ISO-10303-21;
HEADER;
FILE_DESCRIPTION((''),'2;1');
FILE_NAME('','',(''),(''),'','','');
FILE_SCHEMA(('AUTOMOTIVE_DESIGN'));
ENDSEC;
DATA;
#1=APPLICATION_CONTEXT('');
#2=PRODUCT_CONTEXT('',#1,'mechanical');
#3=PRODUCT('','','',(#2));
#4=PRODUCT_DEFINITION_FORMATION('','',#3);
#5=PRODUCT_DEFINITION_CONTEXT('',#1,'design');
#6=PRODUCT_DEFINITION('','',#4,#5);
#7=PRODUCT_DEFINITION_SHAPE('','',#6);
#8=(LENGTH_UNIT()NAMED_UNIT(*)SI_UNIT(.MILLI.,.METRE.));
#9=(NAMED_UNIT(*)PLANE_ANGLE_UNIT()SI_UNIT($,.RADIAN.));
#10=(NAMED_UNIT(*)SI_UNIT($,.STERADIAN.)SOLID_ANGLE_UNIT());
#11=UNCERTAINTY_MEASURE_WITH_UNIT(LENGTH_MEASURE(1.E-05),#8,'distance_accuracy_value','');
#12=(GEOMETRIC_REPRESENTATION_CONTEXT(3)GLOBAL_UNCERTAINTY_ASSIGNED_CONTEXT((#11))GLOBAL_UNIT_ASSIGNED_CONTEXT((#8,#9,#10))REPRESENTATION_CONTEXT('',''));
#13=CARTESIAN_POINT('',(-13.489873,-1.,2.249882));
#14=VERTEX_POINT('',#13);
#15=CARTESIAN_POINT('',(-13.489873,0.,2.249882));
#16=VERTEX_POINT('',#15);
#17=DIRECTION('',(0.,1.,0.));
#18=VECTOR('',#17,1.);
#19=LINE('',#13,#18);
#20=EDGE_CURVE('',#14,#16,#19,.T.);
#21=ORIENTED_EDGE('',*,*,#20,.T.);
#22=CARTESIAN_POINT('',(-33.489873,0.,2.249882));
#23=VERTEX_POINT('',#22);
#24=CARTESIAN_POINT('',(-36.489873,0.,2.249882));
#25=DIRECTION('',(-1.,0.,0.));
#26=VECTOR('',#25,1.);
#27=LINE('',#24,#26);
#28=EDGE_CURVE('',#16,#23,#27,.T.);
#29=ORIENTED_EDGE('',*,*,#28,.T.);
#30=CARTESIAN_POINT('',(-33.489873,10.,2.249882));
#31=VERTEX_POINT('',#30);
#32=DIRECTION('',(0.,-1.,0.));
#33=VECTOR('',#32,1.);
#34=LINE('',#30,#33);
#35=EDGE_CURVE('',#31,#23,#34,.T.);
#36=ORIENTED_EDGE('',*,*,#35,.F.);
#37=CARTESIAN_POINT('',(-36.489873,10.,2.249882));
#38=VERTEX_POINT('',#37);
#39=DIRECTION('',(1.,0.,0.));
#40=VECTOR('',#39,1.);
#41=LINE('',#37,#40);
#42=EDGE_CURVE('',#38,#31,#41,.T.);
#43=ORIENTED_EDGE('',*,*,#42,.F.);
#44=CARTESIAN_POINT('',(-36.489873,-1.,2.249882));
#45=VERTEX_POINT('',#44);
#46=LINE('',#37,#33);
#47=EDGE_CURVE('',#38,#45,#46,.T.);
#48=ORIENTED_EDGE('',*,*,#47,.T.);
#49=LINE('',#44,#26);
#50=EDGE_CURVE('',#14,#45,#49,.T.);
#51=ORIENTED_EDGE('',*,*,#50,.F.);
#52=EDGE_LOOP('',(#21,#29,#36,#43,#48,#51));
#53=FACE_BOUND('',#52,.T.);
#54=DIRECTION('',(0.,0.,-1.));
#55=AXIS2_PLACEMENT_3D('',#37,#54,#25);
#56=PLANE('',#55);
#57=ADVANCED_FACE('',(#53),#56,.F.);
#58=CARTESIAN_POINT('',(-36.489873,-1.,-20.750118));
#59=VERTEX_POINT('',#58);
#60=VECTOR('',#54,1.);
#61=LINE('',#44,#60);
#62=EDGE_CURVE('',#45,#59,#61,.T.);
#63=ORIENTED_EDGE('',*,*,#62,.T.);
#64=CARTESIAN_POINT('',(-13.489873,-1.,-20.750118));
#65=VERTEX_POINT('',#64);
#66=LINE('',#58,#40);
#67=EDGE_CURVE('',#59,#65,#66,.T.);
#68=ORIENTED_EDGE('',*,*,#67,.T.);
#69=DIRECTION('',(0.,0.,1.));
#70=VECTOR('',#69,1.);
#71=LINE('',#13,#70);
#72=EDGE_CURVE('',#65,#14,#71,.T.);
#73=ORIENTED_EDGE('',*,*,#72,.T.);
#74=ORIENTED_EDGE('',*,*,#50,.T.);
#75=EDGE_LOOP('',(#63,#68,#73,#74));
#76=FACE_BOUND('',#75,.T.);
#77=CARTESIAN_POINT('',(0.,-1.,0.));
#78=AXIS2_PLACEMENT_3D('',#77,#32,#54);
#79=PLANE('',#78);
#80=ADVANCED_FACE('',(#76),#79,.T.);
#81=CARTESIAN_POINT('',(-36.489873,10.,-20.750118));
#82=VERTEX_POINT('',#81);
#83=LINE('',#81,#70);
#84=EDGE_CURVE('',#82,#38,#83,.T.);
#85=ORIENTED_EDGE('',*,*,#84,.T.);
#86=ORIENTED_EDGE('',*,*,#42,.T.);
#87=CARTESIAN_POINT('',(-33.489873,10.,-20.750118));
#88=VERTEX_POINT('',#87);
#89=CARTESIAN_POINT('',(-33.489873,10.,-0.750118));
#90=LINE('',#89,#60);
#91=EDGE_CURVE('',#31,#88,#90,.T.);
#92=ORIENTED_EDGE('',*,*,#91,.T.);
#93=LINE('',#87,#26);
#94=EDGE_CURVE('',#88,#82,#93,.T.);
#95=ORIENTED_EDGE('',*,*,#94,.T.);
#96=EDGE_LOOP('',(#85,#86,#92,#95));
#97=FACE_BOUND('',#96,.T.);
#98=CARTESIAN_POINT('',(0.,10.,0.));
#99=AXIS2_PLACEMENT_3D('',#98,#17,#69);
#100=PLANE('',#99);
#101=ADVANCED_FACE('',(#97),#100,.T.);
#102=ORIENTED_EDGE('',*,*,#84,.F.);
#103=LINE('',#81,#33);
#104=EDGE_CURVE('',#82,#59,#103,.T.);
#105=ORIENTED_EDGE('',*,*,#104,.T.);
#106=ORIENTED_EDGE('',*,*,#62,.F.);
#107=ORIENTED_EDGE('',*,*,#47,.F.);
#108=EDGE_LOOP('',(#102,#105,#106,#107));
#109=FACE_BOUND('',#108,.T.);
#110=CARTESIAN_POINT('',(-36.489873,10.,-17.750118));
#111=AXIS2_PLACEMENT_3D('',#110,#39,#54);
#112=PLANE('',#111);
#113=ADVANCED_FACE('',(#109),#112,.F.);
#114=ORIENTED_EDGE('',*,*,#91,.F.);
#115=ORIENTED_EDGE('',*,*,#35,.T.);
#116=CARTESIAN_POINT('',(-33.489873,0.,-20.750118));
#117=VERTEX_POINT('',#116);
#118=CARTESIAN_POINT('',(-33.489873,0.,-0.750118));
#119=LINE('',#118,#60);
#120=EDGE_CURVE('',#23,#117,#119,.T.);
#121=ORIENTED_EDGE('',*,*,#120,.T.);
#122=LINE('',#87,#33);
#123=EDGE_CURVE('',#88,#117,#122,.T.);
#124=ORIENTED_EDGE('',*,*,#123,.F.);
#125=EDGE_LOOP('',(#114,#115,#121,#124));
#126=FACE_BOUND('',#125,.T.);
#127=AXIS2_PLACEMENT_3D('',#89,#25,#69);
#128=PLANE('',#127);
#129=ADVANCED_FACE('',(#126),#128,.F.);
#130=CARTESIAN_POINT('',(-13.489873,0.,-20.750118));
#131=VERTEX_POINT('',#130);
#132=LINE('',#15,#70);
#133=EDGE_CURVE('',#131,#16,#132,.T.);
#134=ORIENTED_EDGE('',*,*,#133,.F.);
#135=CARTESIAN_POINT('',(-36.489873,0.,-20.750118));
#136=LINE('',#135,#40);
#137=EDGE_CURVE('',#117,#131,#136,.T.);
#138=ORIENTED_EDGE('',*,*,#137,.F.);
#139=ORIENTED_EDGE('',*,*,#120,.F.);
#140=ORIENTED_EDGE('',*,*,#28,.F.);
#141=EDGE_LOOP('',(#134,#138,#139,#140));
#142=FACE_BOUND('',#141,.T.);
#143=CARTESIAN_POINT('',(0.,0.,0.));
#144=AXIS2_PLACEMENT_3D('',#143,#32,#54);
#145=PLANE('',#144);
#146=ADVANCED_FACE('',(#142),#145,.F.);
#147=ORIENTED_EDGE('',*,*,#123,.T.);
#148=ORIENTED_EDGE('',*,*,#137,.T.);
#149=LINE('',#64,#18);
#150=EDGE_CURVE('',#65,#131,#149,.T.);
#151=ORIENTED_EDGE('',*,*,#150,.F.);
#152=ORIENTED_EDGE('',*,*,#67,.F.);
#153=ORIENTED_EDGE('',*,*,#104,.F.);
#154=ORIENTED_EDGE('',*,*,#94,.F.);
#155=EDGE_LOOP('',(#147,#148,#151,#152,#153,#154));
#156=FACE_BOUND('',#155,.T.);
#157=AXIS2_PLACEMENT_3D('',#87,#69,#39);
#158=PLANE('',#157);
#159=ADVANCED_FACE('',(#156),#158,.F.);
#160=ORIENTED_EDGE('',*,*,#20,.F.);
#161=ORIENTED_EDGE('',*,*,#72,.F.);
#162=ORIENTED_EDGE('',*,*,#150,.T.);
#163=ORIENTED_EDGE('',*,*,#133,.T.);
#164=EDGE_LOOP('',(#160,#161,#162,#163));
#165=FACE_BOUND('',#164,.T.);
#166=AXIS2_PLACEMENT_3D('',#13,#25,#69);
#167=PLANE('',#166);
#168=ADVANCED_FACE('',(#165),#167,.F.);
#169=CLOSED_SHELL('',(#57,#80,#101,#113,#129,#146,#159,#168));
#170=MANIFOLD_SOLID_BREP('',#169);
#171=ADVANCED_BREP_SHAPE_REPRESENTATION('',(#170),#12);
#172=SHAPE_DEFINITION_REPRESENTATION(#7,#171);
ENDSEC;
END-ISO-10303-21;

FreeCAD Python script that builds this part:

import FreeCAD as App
import Part
import Sketcher
from FreeCAD import Vector


def add_polygon(sketch, points):
    """Adds a closed chain of lines whose ends are joined by coincident constraints."""
    first, n = sketch.GeometryCount, len(points)
    for a, b in zip(points, points[1:] + points[:1]):
        sketch.addGeometry(Part.LineSegment(App.Vector(*a, 0), App.Vector(*b, 0)), False)
    for i in range(n):
        sketch.addConstraint(Sketcher.Constraint("Coincident", first + i, 2, first + (i + 1) % n, 1))

doc = App.newDocument("Part")
params = doc.addObject("Spreadsheet::Sheet", "Params")
for row, (alias, value) in enumerate([
    ("sketch1_width", "3 mm"),
    ("sketch1_height", "23 mm"),
    ("pad1_length", "10 mm"),
    ("sketch2_width", "23 mm"),
    ("pad2_length", "1 mm"),
], start=1):
    params.set(f"A{row}", alias)
    params.set(f"B{row}", "=" + value)
    params.setAlias(f"B{row}", alias)

body = doc.addObject("PartDesign::Body", "Body")

sketch1 = body.newObject("Sketcher::SketchObject", "Sketch")
sketch1.AttachmentSupport = (doc.getObject("XZ_Plane"), [""])
sketch1.MapMode = "FlatFace"
add_polygon(sketch1, [(-36.5, 2.2), (-33.5, 2.2), (-33.5, -20.8), (-36.5, -20.8)])
sketch1.addConstraint(Sketcher.Constraint("Horizontal", 0))
sketch1.addConstraint(Sketcher.Constraint("Vertical", 1))
sketch1.addConstraint(Sketcher.Constraint("Horizontal", 2))
sketch1.addConstraint(Sketcher.Constraint("Vertical", 3))
sketch1.addConstraint(Sketcher.Constraint("DistanceX", 0, 1, 0, 2, 3.0))
sketch1.addConstraint(Sketcher.Constraint("DistanceY", 1, 2, 1, 1, 23.0))
sketch1.addConstraint(Sketcher.Constraint("DistanceX", 0, 2, -1, 1, 33.489873))
sketch1.addConstraint(Sketcher.Constraint("DistanceY", -1, 1, 0, 2, 2.249882))
sketch1.setExpression("Constraints[8]", "Params.sketch1_width")
sketch1.setExpression("Constraints[9]", "Params.sketch1_height")
pad1 = body.newObject("PartDesign::Pad", "Pad")
pad1.Profile = sketch1
pad1.setExpression("Length", "Params.pad1_length")
pad1.Reversed = True

sketch2 = body.newObject("Sketcher::SketchObject", "Sketch001")
sketch2.AttachmentSupport = (doc.getObject("XZ_Plane"), [""])
sketch2.MapMode = "FlatFace"
add_polygon(sketch2, [(-36, 2), (-36, -21), (-13, -21), (-13, 2)])
sketch2.addConstraint(Sketcher.Constraint("Vertical", 0))
sketch2.addConstraint(Sketcher.Constraint("Horizontal", 1))
sketch2.addConstraint(Sketcher.Constraint("Vertical", 2))
sketch2.addConstraint(Sketcher.Constraint("Horizontal", 3))
sketch2.addConstraint(Sketcher.Constraint("Equal", 3, 0))
sketch2.addConstraint(Sketcher.Constraint("DistanceX", 1, 1, 1, 2, 23.0))
sketch2.addConstraint(Sketcher.Constraint("DistanceX", 0, 2, -1, 1, 36.489873))
sketch2.addConstraint(Sketcher.Constraint("DistanceY", 0, 2, -1, 1, 20.750118))
sketch2.setExpression("Constraints[9]", "Params.sketch2_width")
pad2 = body.newObject("PartDesign::Pad", "Pad001")
pad2.Profile = sketch2
pad2.setExpression("Length", "Params.pad2_length")

doc.recompute()
